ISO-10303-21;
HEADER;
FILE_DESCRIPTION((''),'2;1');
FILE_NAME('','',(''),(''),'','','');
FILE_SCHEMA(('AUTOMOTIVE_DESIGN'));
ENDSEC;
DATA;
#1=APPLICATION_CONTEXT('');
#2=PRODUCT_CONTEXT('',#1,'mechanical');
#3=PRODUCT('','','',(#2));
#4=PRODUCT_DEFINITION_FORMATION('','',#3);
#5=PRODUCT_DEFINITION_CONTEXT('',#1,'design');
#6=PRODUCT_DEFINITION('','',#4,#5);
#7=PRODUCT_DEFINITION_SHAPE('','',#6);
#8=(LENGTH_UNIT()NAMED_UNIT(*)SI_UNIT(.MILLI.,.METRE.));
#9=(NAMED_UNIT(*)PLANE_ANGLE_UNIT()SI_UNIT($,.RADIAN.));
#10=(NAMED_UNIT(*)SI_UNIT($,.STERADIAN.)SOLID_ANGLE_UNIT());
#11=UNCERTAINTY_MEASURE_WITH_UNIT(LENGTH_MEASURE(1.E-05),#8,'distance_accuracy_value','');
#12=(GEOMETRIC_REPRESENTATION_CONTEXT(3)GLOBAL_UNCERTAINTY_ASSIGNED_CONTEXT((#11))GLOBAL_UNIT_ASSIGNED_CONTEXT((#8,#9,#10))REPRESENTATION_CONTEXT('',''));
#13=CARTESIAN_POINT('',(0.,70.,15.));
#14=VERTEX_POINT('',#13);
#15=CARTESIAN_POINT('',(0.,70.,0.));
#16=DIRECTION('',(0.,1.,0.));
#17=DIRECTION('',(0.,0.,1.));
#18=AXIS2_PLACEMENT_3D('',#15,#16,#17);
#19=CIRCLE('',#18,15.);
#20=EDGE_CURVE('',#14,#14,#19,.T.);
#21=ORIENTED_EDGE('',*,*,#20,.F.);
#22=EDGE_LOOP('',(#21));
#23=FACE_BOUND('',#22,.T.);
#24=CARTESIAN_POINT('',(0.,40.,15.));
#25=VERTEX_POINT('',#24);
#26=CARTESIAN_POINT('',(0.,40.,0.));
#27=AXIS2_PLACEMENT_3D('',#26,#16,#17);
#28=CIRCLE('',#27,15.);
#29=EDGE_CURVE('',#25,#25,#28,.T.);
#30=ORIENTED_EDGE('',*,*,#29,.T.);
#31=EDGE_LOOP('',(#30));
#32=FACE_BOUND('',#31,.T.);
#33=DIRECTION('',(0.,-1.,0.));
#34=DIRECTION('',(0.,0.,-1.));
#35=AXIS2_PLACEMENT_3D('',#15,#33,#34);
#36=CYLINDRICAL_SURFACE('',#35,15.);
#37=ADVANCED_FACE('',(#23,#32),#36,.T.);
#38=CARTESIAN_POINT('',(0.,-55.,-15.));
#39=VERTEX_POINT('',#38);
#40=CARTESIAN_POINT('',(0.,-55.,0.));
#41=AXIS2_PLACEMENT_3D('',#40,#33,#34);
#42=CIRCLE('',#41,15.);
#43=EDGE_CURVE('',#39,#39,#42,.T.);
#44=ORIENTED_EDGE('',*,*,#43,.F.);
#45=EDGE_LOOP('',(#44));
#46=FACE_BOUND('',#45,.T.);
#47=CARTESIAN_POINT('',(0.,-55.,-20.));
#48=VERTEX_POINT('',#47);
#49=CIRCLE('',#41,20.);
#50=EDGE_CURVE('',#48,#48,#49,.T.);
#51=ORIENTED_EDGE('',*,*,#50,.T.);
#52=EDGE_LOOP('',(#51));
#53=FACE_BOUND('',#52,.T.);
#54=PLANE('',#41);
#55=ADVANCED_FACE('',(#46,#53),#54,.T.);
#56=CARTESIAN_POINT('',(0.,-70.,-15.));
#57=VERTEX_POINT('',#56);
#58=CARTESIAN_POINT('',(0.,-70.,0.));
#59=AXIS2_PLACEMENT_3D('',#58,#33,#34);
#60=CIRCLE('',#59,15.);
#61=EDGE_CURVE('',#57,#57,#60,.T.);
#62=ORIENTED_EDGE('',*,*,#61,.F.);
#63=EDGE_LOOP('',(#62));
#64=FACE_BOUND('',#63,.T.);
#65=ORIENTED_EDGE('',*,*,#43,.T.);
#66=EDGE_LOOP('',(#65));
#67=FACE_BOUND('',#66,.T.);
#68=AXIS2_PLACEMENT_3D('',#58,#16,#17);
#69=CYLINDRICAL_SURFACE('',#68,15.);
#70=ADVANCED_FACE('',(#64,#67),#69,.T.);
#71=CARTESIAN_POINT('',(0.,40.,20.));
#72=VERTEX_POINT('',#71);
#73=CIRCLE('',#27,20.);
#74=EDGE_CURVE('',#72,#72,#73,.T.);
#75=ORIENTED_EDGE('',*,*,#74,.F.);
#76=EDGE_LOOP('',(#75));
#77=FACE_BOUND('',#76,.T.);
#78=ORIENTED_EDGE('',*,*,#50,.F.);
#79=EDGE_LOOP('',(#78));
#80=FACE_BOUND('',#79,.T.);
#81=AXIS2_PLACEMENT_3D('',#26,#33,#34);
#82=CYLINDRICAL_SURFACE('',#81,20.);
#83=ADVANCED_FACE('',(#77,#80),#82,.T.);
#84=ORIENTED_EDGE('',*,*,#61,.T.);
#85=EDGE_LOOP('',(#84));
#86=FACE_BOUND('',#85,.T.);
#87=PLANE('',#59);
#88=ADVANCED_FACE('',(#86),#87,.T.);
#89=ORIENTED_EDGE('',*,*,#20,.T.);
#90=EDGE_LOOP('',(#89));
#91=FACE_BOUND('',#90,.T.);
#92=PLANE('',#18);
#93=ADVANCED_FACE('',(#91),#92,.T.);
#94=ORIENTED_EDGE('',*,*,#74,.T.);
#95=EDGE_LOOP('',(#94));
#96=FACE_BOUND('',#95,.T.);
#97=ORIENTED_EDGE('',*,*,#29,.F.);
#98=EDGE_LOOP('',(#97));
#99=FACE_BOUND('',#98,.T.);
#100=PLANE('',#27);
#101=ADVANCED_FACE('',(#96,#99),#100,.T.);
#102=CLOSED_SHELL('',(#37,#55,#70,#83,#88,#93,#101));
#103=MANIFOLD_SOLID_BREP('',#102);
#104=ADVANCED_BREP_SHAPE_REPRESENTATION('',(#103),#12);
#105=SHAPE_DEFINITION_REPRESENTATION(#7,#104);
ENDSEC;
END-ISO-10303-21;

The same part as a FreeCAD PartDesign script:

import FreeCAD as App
import Part
import Sketcher
from FreeCAD import Vector

doc = App.newDocument("Part")
body = doc.addObject("PartDesign::Body", "Body")

sketch1 = doc.addObject("Sketcher::SketchObject", "Sketch")
body.addObject(sketch1)
sketch1.AttachmentSupport = (doc.XZ_Plane, [""])
sketch1.MapMode = "FlatFace"
sketch1.addGeometry(Part.Circle(Vector(0, 0, 0), Vector(0, 0, 1), 20), False)
sketch1.addConstraint([
    Sketcher.Constraint("Coincident", 0, 3, -1, 1),
    Sketcher.Constraint("Diameter", 0, 40.0),
])
pad1 = doc.addObject("PartDesign::Pad", "Pad")
body.addObject(pad1)
pad1.Profile = sketch1
pad1.Length = 80
pad1.Midplane = True

sketch2 = doc.addObject("Sketcher::SketchObject", "Sketch001")
body.addObject(sketch2)
sketch2.AttachmentSupport = (doc.XZ_Plane, [""])
sketch2.MapMode = "FlatFace"
sketch2.AttachmentOffset = App.Placement(Vector(0, 0, -40), App.Rotation())
sketch2.addGeometry(Part.Circle(Vector(0, 0, 0), Vector(0, 0, 1), 15), False)
sketch2.addConstraint([
    Sketcher.Constraint("Coincident", 0, 3, -1, 1),
    Sketcher.Constraint("Diameter", 0, 30.0),
])
pad2 = doc.addObject("PartDesign::Pad", "Pad001")
body.addObject(pad2)
pad2.Profile = sketch2
pad2.Length = 30
pad2.Reversed = True

sketch3 = doc.addObject("Sketcher::SketchObject", "Sketch002")
body.addObject(sketch3)
sketch3.AttachmentSupport = (doc.XZ_Plane, [""])
sketch3.MapMode = "FlatFace"
sketch3.AttachmentOffset = App.Placement(Vector(0, 0, 40), App.Rotation())
sketch3.addGeometry(Part.Circle(Vector(0, 0, 0), Vector(0, 0, 1), 15), False)
sketch3.addConstraint([
    Sketcher.Constraint("Coincident", 0, 3, -1, 1),
    Sketcher.Constraint("Diameter", 0, 30.0),
])
pad3 = doc.addObject("PartDesign::Pad", "Pad002")
body.addObject(pad3)
pad3.Profile = sketch3
pad3.Length = 30

sketch4 = doc.addObject("Sketcher::SketchObject", "Sketch003")
body.addObject(sketch4)
sketch4.AttachmentSupport = (doc.XZ_Plane, [""])
sketch4.MapMode = "FlatFace"
sketch4.AttachmentOffset = App.Placement(Vector(0, 0, 40), App.Rotation())
sketch4.addGeometry(Part.Circle(Vector(0, 0, 0), Vector(0, 0, 1), 20), False)
sketch4.addConstraint([
    Sketcher.Constraint("Coincident", 0, 3, -1, 1),
    Sketcher.Constraint("Diameter", 0, 40.0),
])
pad4 = doc.addObject("PartDesign::Pad", "Pad003")
body.addObject(pad4)
pad4.Profile = sketch4
pad4.Length = 15

doc.recompute()
